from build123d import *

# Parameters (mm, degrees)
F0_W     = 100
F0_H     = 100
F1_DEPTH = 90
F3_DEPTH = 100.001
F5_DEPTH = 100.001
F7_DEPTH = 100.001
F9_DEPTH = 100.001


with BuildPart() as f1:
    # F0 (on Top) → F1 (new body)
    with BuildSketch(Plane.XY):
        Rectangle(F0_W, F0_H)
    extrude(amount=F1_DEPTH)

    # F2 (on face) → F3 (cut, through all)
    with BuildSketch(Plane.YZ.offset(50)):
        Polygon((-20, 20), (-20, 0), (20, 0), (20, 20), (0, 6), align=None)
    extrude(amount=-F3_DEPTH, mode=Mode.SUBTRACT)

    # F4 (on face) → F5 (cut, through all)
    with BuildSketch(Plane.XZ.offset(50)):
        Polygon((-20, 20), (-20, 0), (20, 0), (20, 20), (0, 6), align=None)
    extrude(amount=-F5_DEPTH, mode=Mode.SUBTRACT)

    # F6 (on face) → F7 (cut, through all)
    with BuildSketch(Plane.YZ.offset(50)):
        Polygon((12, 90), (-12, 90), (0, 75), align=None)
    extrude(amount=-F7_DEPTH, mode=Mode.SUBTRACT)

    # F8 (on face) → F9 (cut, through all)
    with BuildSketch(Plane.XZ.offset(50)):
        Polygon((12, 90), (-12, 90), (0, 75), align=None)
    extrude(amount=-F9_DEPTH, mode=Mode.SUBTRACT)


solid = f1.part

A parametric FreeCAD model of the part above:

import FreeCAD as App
import Part
import Sketcher
from FreeCAD import Vector
Q = App.Units.Quantity

doc = App.newDocument("Part")
params = doc.addObject("Spreadsheet::Sheet", "Params")
for row, (alias, value) in enumerate([
    ("sketch1_width", "100 mm"),
    ("pad1_length", "90 mm"),
    ("sketch2_width", "40 mm"),
    ("sketch2_height", "20 mm"),
    ("sketch3_width", "40 mm"),
    ("sketch3_height", "20 mm"),
    ("sketch4_width", "24 mm"),
    ("sketch5_width", "24 mm"),
], start=1):
    params.set(f"A{row}", alias)
    params.set(f"B{row}", "=" + value)
    params.setAlias(f"B{row}", alias)

body = doc.addObject("PartDesign::Body", "Body")

sketch1 = doc.addObject("Sketcher::SketchObject", "Sketch")
body.addObject(sketch1)
sketch1.AttachmentSupport = (doc.XY_Plane, [""])
sketch1.MapMode = "FlatFace"
sketch1.addGeometry([
    Part.LineSegment(Vector(-50, 50, 0), Vector(-50, -50, 0)),
    Part.LineSegment(Vector(-50, -50, 0), Vector(50, -50, 0)),
    Part.LineSegment(Vector(50, -50, 0), Vector(50, 50, 0)),
    Part.LineSegment(Vector(50, 50, 0), Vector(-50, 50, 0)),
], False)
sketch1.addConstraint([
    Sketcher.Constraint("Coincident", 0, 2, 1, 1),
    Sketcher.Constraint("Coincident", 1, 2, 2, 1),
    Sketcher.Constraint("Coincident", 2, 2, 3, 1),
    Sketcher.Constraint("Coincident", 3, 2, 0, 1),
    Sketcher.Constraint("Vertical", 0),
    Sketcher.Constraint("Horizontal", 1),
    Sketcher.Constraint("Vertical", 2),
    Sketcher.Constraint("Horizontal", 3),
    Sketcher.Constraint("Symmetric", 0, 2, 2, 2, -1, 1),
    Sketcher.Constraint("Equal", 3, 0),
    Sketcher.Constraint("DistanceX", 1, 1, 1, 2, Q("100 mm")),
])
sketch1.setExpression("Constraints[10]", "Params.sketch1_width")
pad1 = doc.addObject("PartDesign::Pad", "Pad")
body.addObject(pad1)
pad1.Profile = sketch1
pad1.setExpression("Length", "Params.pad1_length")

sketch2 = doc.addObject("Sketcher::SketchObject", "Sketch001")
body.addObject(sketch2)
sketch2.AttachmentSupport = (doc.YZ_Plane, [""])
sketch2.MapMode = "FlatFace"
sketch2.AttachmentOffset = App.Placement(Vector(0, 0, 50), App.Rotation())
sketch2.addGeometry([
    Part.LineSegment(Vector(-20, 20, 0), Vector(-20, 0, 0)),
    Part.LineSegment(Vector(-20, 0, 0), Vector(20, 0, 0)),
    Part.LineSegment(Vector(20, 0, 0), Vector(20, 20, 0)),
    Part.LineSegment(Vector(20, 20, 0), Vector(0, 6, 0)),
    Part.LineSegment(Vector(0, 6, 0), Vector(-20, 20, 0)),
], False)
sketch2.addConstraint([
    Sketcher.Constraint("Coincident", 0, 2, 1, 1),
    Sketcher.Constraint("Coincident", 1, 2, 2, 1),
    Sketcher.Constraint("Coincident", 2, 2, 3, 1),
    Sketcher.Constraint("Coincident", 3, 2, 4, 1),
    Sketcher.Constraint("Coincident", 4, 2, 0, 1),
    Sketcher.Constraint("Vertical", 0),
    Sketcher.Constraint("Horizontal", 1),
    Sketcher.Constraint("Vertical", 2),
    Sketcher.Constraint("Symmetric", 0, 2, 1, 2, -1, 1),
    Sketcher.Constraint("PointOnObject", 3, 2, -2),
    Sketcher.Constraint("Horizontal", 2, 2, 4, 2),
    Sketcher.Constraint("DistanceX", 1, 1, 1, 2, Q("40 mm")),
    Sketcher.Constraint("DistanceY", 0, 2, 0, 1, Q("20 mm")),
    Sketcher.Constraint("DistanceY", -1, 1, 3, 2, Q("6 mm")),
])
sketch2.setExpression("Constraints[11]", "Params.sketch2_width")
sketch2.setExpression("Constraints[12]", "Params.sketch2_height")
pocket1 = doc.addObject("PartDesign::Pocket", "Pocket")
body.addObject(pocket1)
pocket1.Profile = sketch2
pocket1.Type = "ThroughAll"

sketch3 = doc.addObject("Sketcher::SketchObject", "Sketch002")
body.addObject(sketch3)
sketch3.AttachmentSupport = (doc.XZ_Plane, [""])
sketch3.MapMode = "FlatFace"
sketch3.AttachmentOffset = App.Placement(Vector(0, 0, 50), App.Rotation())
sketch3.addGeometry([
    Part.LineSegment(Vector(-20, 20, 0), Vector(-20, 0, 0)),
    Part.LineSegment(Vector(-20, 0, 0), Vector(20, 0, 0)),
    Part.LineSegment(Vector(20, 0, 0), Vector(20, 20, 0)),
    Part.LineSegment(Vector(20, 20, 0), Vector(0, 6, 0)),
    Part.LineSegment(Vector(0, 6, 0), Vector(-20, 20, 0)),
], False)
sketch3.addConstraint([
    Sketcher.Constraint("Coincident", 0, 2, 1, 1),
    Sketcher.Constraint("Coincident", 1, 2, 2, 1),
    Sketcher.Constraint("Coincident", 2, 2, 3, 1),
    Sketcher.Constraint("Coincident", 3, 2, 4, 1),
    Sketcher.Constraint("Coincident", 4, 2, 0, 1),
    Sketcher.Constraint("Vertical", 0),
    Sketcher.Constraint("Horizontal", 1),
    Sketcher.Constraint("Vertical", 2),
    Sketcher.Constraint("Symmetric", 0, 2, 1, 2, -1, 1),
    Sketcher.Constraint("PointOnObject", 3, 2, -2),
    Sketcher.Constraint("Horizontal", 2, 2, 4, 2),
    Sketcher.Constraint("DistanceX", 1, 1, 1, 2, Q("40 mm")),
    Sketcher.Constraint("DistanceY", 0, 2, 0, 1, Q("20 mm")),
    Sketcher.Constraint("DistanceY", -1, 1, 3, 2, Q("6 mm")),
])
sketch3.setExpression("Constraints[11]", "Params.sketch3_width")
sketch3.setExpression("Constraints[12]", "Params.sketch3_height")
pocket2 = doc.addObject("PartDesign::Pocket", "Pocket001")
body.addObject(pocket2)
pocket2.Profile = sketch3
pocket2.Type = "ThroughAll"

sketch4 = doc.addObject("Sketcher::SketchObject", "Sketch003")
body.addObject(sketch4)
sketch4.AttachmentSupport = (doc.YZ_Plane, [""])
sketch4.MapMode = "FlatFace"
sketch4.AttachmentOffset = App.Placement(Vector(0, 0, 50), App.Rotation())
sketch4.addGeometry([
    Part.LineSegment(Vector(12, 90, 0), Vector(-12, 90, 0)),
    Part.LineSegment(Vector(-12, 90, 0), Vector(0, 75, 0)),
    Part.LineSegment(Vector(0, 75, 0), Vector(12, 90, 0)),
], False)
sketch4.addConstraint([
    Sketcher.Constraint("Coincident", 0, 2, 1, 1),
    Sketcher.Constraint("Coincident", 1, 2, 2, 1),
    Sketcher.Constraint("Coincident", 2, 2, 0, 1),
    Sketcher.Constraint("Horizontal", 0),
    Sketcher.Constraint("PointOnObject", 1, 2, -2),
    Sketcher.Constraint("Equal", 1, 2),
    Sketcher.Constraint("DistanceX", 0, 2, 0, 1, Q("24 mm")),
    Sketcher.Constraint("DistanceY", -1, 1, 0, 2, Q("90 mm")),
    Sketcher.Constraint("DistanceY", -1, 1, 1, 2, Q("75 mm")),
])
sketch4.setExpression("Constraints[6]", "Params.sketch4_width")
pocket3 = doc.addObject("PartDesign::Pocket", "Pocket002")
body.addObject(pocket3)
pocket3.Profile = sketch4
pocket3.Type = "ThroughAll"

sketch5 = doc.addObject("Sketcher::SketchObject", "Sketch004")
body.addObject(sketch5)
sketch5.AttachmentSupport = (doc.XZ_Plane, [""])
sketch5.MapMode = "FlatFace"
sketch5.AttachmentOffset = App.Placement(Vector(0, 0, 50), App.Rotation())
sketch5.addGeometry([
    Part.LineSegment(Vector(12, 90, 0), Vector(-12, 90, 0)),
    Part.LineSegment(Vector(-12, 90, 0), Vector(0, 75, 0)),
    Part.LineSegment(Vector(0, 75, 0), Vector(12, 90, 0)),
], False)
sketch5.addConstraint([
    Sketcher.Constraint("Coincident", 0, 2, 1, 1),
    Sketcher.Constraint("Coincident", 1, 2, 2, 1),
    Sketcher.Constraint("Coincident", 2, 2, 0, 1),
    Sketcher.Constraint("Horizontal", 0),
    Sketcher.Constraint("PointOnObject", 1, 2, -2),
    Sketcher.Constraint("Equal", 1, 2),
    Sketcher.Constraint("DistanceX", 0, 2, 0, 1, Q("24 mm")),
    Sketcher.Constraint("DistanceY", -1, 1, 0, 2, Q("90 mm")),
    Sketcher.Constraint("DistanceY", -1, 1, 1, 2, Q("75 mm")),
])
sketch5.setExpression("Constraints[6]", "Params.sketch5_width")
pocket4 = doc.addObject("PartDesign::Pocket", "Pocket003")
body.addObject(pocket4)
pocket4.Profile = sketch5
pocket4.Type = "ThroughAll"

doc.recompute()
